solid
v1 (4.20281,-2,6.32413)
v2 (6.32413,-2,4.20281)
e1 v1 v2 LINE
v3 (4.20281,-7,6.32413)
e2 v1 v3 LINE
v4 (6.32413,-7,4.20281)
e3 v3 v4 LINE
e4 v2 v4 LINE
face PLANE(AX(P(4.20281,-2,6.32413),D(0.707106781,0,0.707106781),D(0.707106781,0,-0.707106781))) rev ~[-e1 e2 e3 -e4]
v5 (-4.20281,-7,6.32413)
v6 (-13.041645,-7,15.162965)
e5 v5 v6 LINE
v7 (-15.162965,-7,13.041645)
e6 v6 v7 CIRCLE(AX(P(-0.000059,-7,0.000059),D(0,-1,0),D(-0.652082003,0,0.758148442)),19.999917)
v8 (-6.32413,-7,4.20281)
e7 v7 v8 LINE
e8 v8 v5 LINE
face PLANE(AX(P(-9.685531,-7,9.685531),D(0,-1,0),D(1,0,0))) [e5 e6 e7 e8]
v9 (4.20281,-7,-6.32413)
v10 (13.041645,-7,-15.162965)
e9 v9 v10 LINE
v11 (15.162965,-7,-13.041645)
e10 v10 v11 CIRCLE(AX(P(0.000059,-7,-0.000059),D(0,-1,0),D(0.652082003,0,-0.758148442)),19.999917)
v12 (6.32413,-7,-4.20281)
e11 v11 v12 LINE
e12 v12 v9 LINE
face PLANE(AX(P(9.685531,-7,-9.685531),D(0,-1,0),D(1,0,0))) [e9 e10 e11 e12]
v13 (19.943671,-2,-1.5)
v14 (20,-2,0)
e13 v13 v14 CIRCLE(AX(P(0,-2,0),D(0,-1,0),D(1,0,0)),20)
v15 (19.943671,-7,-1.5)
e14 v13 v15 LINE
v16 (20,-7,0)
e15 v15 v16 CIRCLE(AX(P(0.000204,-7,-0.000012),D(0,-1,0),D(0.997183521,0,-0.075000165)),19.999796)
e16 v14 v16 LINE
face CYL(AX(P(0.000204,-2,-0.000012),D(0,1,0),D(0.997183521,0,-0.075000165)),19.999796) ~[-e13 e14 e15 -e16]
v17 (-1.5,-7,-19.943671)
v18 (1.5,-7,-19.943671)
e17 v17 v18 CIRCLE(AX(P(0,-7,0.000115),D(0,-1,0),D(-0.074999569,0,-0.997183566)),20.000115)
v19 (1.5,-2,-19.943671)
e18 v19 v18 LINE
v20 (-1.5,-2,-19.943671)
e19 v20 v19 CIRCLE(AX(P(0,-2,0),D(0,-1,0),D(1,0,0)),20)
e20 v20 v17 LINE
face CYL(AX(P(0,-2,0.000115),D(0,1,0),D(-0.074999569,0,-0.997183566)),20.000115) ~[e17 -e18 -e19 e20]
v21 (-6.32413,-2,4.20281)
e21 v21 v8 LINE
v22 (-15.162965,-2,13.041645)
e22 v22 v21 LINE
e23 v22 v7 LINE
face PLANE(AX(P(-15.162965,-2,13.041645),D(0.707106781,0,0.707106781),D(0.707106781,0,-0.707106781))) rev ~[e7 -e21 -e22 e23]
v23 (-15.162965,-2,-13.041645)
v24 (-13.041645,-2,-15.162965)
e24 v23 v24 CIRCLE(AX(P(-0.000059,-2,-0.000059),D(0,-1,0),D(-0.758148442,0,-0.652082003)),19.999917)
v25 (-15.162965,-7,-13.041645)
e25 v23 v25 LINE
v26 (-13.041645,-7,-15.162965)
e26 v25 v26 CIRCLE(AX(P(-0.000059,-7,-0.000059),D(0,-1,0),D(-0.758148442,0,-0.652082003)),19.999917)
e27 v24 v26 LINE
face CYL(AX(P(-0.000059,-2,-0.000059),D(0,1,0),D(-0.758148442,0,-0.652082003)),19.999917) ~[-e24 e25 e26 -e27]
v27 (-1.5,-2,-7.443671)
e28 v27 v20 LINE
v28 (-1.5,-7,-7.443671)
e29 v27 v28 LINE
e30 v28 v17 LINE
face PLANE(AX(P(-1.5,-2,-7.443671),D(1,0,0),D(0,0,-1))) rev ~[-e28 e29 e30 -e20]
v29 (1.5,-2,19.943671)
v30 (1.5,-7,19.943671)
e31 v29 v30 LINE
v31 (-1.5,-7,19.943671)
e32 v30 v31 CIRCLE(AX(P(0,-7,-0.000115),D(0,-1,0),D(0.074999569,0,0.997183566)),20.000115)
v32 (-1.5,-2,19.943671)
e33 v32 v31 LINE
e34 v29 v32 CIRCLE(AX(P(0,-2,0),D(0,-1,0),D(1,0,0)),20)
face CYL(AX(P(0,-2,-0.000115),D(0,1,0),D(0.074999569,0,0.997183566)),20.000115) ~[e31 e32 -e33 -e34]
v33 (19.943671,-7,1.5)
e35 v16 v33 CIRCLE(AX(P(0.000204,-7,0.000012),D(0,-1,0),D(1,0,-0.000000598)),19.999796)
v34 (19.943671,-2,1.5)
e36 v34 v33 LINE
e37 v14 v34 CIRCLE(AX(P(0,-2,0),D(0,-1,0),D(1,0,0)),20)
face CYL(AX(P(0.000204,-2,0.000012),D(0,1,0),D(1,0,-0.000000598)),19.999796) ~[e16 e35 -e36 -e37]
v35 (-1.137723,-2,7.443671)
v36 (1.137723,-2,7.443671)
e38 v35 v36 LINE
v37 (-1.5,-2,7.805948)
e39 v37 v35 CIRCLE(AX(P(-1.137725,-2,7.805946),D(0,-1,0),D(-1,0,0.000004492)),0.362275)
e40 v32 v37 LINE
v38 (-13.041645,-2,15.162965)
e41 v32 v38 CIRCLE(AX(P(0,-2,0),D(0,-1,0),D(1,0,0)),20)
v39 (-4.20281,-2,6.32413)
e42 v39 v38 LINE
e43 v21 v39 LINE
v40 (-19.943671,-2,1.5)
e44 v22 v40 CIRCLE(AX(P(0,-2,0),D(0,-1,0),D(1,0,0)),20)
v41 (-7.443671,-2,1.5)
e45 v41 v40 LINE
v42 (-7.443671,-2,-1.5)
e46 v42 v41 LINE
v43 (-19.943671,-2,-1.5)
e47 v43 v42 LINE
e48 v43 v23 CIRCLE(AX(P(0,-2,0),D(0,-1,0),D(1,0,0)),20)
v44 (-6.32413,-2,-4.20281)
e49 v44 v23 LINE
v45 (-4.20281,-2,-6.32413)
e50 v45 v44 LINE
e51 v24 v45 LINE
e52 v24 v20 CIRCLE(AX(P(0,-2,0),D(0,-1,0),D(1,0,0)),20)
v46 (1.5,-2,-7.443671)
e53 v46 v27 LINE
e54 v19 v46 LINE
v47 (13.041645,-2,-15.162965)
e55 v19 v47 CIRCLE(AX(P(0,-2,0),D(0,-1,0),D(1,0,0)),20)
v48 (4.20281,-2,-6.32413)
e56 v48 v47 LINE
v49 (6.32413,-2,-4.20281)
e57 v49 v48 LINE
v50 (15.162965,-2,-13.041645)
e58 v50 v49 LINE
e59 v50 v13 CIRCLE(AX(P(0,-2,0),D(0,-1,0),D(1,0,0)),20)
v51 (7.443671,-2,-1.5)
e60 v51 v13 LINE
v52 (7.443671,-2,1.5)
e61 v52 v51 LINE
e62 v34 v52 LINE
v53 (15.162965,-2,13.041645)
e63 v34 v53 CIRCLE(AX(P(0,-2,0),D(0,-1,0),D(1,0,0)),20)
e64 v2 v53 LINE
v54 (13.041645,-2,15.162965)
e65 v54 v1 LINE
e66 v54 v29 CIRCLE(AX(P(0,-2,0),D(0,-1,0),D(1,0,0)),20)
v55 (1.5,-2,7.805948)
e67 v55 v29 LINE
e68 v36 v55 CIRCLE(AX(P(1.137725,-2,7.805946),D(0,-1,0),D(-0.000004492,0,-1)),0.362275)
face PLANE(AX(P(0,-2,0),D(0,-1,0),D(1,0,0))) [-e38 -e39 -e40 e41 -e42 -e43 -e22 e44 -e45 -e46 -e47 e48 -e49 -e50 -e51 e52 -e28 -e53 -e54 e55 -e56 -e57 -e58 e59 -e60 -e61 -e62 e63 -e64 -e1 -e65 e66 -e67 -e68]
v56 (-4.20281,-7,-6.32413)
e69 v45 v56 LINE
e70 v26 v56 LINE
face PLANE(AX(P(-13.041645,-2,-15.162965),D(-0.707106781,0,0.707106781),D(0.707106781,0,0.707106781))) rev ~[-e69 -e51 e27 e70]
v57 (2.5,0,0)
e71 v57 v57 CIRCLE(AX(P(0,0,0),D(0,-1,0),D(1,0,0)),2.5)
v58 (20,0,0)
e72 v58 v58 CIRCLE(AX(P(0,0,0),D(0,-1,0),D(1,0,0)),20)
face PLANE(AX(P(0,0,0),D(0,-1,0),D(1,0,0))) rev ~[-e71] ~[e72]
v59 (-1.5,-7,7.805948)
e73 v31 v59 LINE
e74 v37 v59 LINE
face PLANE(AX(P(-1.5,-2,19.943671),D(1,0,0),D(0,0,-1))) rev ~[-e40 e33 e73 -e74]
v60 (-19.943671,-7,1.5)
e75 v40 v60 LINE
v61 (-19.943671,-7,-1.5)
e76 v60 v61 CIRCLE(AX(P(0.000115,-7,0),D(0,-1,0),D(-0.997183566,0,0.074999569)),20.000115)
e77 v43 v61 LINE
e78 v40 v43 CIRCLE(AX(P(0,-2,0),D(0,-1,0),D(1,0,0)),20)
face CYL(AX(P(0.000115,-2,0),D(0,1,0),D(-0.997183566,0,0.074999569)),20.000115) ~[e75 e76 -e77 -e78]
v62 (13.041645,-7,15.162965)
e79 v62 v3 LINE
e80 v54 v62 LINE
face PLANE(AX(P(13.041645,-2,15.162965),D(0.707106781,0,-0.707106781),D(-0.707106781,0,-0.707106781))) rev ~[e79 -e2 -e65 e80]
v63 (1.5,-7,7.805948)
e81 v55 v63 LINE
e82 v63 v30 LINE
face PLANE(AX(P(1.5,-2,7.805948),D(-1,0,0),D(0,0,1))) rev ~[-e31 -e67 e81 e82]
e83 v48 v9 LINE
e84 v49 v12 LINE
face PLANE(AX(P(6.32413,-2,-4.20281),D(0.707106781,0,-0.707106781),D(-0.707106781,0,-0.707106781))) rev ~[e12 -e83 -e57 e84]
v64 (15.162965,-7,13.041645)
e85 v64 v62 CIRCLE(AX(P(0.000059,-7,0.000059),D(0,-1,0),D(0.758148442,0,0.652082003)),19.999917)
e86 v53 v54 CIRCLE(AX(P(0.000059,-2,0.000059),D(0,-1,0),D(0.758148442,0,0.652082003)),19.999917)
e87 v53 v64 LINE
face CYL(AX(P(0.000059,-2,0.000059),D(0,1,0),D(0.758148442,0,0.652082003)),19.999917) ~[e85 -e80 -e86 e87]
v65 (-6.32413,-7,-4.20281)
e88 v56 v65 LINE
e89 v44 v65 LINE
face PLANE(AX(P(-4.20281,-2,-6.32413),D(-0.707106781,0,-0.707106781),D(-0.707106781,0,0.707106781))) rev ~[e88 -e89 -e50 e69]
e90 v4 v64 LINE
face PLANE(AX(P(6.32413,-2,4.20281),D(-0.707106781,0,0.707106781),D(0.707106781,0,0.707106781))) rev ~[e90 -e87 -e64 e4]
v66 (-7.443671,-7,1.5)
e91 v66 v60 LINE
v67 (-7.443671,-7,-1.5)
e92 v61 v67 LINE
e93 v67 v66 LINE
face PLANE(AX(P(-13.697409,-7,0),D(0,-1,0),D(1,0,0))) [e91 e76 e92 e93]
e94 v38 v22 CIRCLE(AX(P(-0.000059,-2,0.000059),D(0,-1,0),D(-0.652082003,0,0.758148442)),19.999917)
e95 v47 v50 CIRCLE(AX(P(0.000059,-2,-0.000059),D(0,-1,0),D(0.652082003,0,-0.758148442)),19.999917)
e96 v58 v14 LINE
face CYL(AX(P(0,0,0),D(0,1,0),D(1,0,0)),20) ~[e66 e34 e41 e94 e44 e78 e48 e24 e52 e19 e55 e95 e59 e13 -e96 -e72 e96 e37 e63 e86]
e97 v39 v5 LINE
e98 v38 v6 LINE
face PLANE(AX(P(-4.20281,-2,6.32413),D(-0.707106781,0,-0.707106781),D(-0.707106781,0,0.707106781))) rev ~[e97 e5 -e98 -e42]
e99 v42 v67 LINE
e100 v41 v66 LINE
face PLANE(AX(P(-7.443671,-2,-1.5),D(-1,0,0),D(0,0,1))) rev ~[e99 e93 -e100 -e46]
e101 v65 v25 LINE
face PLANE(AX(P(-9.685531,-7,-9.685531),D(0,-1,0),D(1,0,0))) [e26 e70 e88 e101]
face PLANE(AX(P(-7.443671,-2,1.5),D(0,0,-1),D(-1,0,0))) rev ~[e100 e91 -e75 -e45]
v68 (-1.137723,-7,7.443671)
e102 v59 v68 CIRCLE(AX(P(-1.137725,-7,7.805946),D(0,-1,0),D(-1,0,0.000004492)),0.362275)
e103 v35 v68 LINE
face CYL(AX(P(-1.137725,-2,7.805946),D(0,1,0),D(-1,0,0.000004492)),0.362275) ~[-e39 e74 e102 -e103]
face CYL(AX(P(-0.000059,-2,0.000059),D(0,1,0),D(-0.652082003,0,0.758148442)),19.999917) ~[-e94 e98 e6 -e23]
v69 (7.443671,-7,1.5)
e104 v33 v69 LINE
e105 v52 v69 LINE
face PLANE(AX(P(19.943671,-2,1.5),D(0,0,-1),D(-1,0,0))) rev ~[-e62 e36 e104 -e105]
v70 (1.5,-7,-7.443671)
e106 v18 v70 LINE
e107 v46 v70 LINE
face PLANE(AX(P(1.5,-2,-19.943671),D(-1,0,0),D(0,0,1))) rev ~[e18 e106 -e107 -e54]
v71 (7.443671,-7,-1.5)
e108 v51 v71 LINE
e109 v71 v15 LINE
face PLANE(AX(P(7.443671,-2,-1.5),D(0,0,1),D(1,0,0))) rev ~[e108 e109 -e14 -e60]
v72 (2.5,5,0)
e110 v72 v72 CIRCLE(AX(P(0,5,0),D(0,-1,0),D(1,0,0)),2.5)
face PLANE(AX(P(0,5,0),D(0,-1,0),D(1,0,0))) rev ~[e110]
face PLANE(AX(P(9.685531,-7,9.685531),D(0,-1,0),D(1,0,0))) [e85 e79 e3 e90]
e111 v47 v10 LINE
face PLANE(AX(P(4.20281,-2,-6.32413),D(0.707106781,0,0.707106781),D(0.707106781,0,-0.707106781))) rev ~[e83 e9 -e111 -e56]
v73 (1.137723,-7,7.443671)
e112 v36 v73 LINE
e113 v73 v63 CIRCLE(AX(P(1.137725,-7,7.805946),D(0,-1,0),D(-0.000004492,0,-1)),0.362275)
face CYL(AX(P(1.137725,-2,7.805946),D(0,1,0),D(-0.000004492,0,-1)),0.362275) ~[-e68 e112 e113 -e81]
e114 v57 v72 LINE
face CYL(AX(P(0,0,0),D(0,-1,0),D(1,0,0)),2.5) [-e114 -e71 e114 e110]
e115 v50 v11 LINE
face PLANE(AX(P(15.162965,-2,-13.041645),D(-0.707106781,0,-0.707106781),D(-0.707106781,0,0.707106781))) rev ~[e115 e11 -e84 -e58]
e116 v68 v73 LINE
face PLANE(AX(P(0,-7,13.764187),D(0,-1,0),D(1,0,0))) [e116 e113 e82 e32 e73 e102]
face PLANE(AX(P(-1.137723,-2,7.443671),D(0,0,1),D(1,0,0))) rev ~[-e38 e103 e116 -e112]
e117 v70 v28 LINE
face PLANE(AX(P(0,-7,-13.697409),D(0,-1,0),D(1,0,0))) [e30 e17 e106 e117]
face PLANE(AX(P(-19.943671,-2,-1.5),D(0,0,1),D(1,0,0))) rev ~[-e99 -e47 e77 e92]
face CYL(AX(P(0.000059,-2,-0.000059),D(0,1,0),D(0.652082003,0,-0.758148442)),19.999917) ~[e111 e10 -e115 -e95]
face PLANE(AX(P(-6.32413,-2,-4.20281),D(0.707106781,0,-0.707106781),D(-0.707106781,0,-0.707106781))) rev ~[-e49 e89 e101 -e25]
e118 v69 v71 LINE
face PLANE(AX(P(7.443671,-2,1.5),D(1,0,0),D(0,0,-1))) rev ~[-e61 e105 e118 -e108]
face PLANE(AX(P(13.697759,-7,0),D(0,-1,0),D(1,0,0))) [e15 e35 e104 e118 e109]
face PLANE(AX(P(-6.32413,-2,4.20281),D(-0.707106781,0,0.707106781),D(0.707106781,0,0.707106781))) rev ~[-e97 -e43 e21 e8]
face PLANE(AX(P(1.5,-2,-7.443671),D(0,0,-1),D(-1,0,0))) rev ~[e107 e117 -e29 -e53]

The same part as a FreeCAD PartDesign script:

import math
import FreeCAD as App
import Part
import Sketcher

V = App.Vector

doc = App.newDocument("Part")
body = doc.addObject("PartDesign::Body", "Body")

sketch1 = body.newObject("Sketcher::SketchObject", "Sketch")
sketch1.AttachmentSupport = (doc.getObject("XZ_Plane"), [""])
sketch1.MapMode = "FlatFace"
sketch1.addGeometry(Part.Circle(V(0, 0, 0), V(0, 0, 1), 20), False)
sketch1.addConstraint([
    Sketcher.Constraint("Coincident", 0, 3, -1, 1),
    Sketcher.Constraint("Diameter", 0, 40.0),
])
pad1 = body.newObject("PartDesign::Pad", "Pad")
pad1.Profile = sketch1
pad1.Length = 2

sketch2 = body.newObject("Sketcher::SketchObject", "Sketch001")
sketch2.AttachmentSupport = (doc.getObject("XZ_Plane"), [""])
sketch2.MapMode = "FlatFace"
sketch2.AttachmentOffset = App.Placement(V(0, 0, 2), App.Rotation())
sketch2.addGeometry([
    Part.LineSegment(V(-4.20281, 6.32413, 0), V(-13.041645, 15.162965, 0)),
    Part.ArcOfCircle(Part.Circle(V(-0.000059, 0.000059, 0), V(0, 0, 1), 19.999917), math.radians(130.698761), math.radians(139.301239)),
    Part.LineSegment(V(-15.162965, 13.041645, 0), V(-6.32413, 4.20281, 0)),
    Part.LineSegment(V(-6.32413, 4.20281, 0), V(-4.20281, 6.32413, 0)),
    Part.LineSegment(V(-7.443671, 1.5, 0), V(-19.943671, 1.5, 0)),
    Part.ArcOfCircle(Part.Circle(V(0.000115, 0, 0), V(0, 0, 1), 20.000115), math.radians(175.698802), math.radians(184.301198)),
    Part.LineSegment(V(-19.943671, -1.5, 0), V(-7.443671, -1.5, 0)),
    Part.LineSegment(V(-7.443671, -1.5, 0), V(-7.443671, 1.5, 0)),
    Part.LineSegment(V(-6.32413, -4.20281, 0), V(-15.162965, -13.041645, 0)),
    Part.ArcOfCircle(Part.Circle(V(-0.000059, -0.000059, 0), V(0, 0, 1), 19.999917), math.radians(-139.301239), math.radians(-130.698761)),
    Part.LineSegment(V(-13.041645, -15.162965, 0), V(-4.20281, -6.32413, 0)),
    Part.LineSegment(V(-4.20281, -6.32413, 0), V(-6.32413, -4.20281, 0)),
    Part.LineSegment(V(-1.5, -7.443671, 0), V(-1.5, -19.943671, 0)),
    Part.ArcOfCircle(Part.Circle(V(0, 0.000115, 0), V(0, 0, 1), 20.000115), math.radians(-94.301198), math.radians(-85.698802)),
    Part.LineSegment(V(1.5, -19.943671, 0), V(1.5, -7.443671, 0)),
    Part.LineSegment(V(1.5, -7.443671, 0), V(-1.5, -7.443671, 0)),
    Part.ArcOfCircle(Part.Circle(V(-1.137725, 7.805946, 0), V(0, 0, 1), 0.362275), math.radians(179.999743), math.radians(270.000257)),
    Part.LineSegment(V(-1.137723, 7.443671, 0), V(1.137723, 7.443671, 0)),
    Part.ArcOfCircle(Part.Circle(V(1.137725, 7.805946, 0), V(0, 0, 1), 0.362275), math.radians(-90.000257), math.radians(0.000257)),
    Part.LineSegment(V(1.5, 7.805948, 0), V(1.5, 19.943671, 0)),
    Part.ArcOfCircle(Part.Circle(V(0, -0.000115, 0), V(0, 0, 1), 20.000115), math.radians(85.698802), math.radians(94.301198)),
    Part.LineSegment(V(-1.5, 19.943671, 0), V(-1.5, 7.805948, 0)),
    Part.ArcOfCircle(Part.Circle(V(0.000059, 0.000059, 0), V(0, 0, 1), 19.999917), math.radians(40.698761), math.radians(49.301239)),
    Part.LineSegment(V(13.041645, 15.162965, 0), V(4.20281, 6.32413, 0)),
    Part.LineSegment(V(4.20281, 6.32413, 0), V(6.32413, 4.20281, 0)),
    Part.LineSegment(V(6.32413, 4.20281, 0), V(15.162965, 13.041645, 0)),
    Part.ArcOfCircle(Part.Circle(V(0.000204, 0.000012, 0), V(0, 0, 1), 19.999796), math.radians(-0.000034), math.radians(4.301232)),
    Part.LineSegment(V(19.943671, 1.5, 0), V(7.443671, 1.5, 0)),
    Part.LineSegment(V(7.443671, 1.5, 0), V(7.443671, -1.5, 0)),
    Part.LineSegment(V(7.443671, -1.5, 0), V(19.943671, -1.5, 0)),
    Part.ArcOfCircle(Part.Circle(V(0.000204, -0.000012, 0), V(0, 0, 1), 19.999796), math.radians(-4.301232), math.radians(0.000034)),
    Part.ArcOfCircle(Part.Circle(V(0.000059, -0.000059, 0), V(0, 0, 1), 19.999917), math.radians(-49.301239), math.radians(-40.698761)),
    Part.LineSegment(V(15.162965, -13.041645, 0), V(6.32413, -4.20281, 0)),
    Part.LineSegment(V(6.32413, -4.20281, 0), V(4.20281, -6.32413, 0)),
    Part.LineSegment(V(4.20281, -6.32413, 0), V(13.041645, -15.162965, 0)),
], False)
sketch2.addConstraint([
    Sketcher.Constraint("Coincident", 0, 2, 1, 1),
    Sketcher.Constraint("Coincident", 1, 2, 2, 1),
    Sketcher.Constraint("Coincident", 2, 2, 3, 1),
    Sketcher.Constraint("Coincident", 3, 2, 0, 1),
    Sketcher.Constraint("Coincident", 4, 2, 5, 1),
    Sketcher.Constraint("Coincident", 5, 2, 6, 1),
    Sketcher.Constraint("Coincident", 6, 2, 7, 1),
    Sketcher.Constraint("Coincident", 7, 2, 4, 1),
    Sketcher.Constraint("Coincident", 8, 2, 9, 1),
    Sketcher.Constraint("Coincident", 9, 2, 10, 1),
    Sketcher.Constraint("Coincident", 10, 2, 11, 1),
    Sketcher.Constraint("Coincident", 11, 2, 8, 1),
    Sketcher.Constraint("Coincident", 12, 2, 13, 1),
    Sketcher.Constraint("Coincident", 13, 2, 14, 1),
    Sketcher.Constraint("Coincident", 14, 2, 15, 1),
    Sketcher.Constraint("Coincident", 15, 2, 12, 1),
    Sketcher.Constraint("Coincident", 16, 2, 17, 1),
    Sketcher.Constraint("Coincident", 17, 2, 18, 1),
    Sketcher.Constraint("Coincident", 18, 2, 19, 1),
    Sketcher.Constraint("Coincident", 19, 2, 20, 1),
    Sketcher.Constraint("Coincident", 20, 2, 21, 1),
    Sketcher.Constraint("Coincident", 21, 2, 16, 1),
    Sketcher.Constraint("Coincident", 22, 2, 23, 1),
    Sketcher.Constraint("Coincident", 23, 2, 24, 1),
    Sketcher.Constraint("Coincident", 24, 2, 25, 1),
    Sketcher.Constraint("Coincident", 25, 2, 22, 1),
    Sketcher.Constraint("Coincident", 26, 2, 27, 1),
    Sketcher.Constraint("Coincident", 27, 2, 28, 1),
    Sketcher.Constraint("Coincident", 28, 2, 29, 1),
    Sketcher.Constraint("Coincident", 29, 2, 30, 1),
    Sketcher.Constraint("Tangent", 30, 2, 26, 1),
    Sketcher.Constraint("Coincident", 31, 2, 32, 1),
    Sketcher.Constraint("Coincident", 32, 2, 33, 1),
    Sketcher.Constraint("Coincident", 33, 2, 34, 1),
    Sketcher.Constraint("Coincident", 34, 2, 31, 1),
    Sketcher.Constraint("Horizontal", 4),
    Sketcher.Constraint("Horizontal", 6),
    Sketcher.Constraint("Vertical", 7),
    Sketcher.Constraint("Vertical", 12),
    Sketcher.Constraint("Vertical", 14),
    Sketcher.Constraint("Horizontal", 15),
    Sketcher.Constraint("Horizontal", 17),
    Sketcher.Constraint("Vertical", 19),
    Sketcher.Constraint("Vertical", 21),
    Sketcher.Constraint("Horizontal", 27),
    Sketcher.Constraint("Vertical", 28),
    Sketcher.Constraint("Horizontal", 29),
    Sketcher.Constraint("Equal", 1, 9),
    Sketcher.Constraint("Equal", 5, 13),
    Sketcher.Constraint("Equal", 16, 18),
    Sketcher.Constraint("Equal", 13, 20),
    Sketcher.Constraint("Equal", 9, 22),
    Sketcher.Constraint("Equal", 26, 30),
    Sketcher.Constraint("Equal", 22, 31),
    Sketcher.Constraint("Symmetric", 13, 3, 20, 3, -1, 1),
    Sketcher.Constraint("Symmetric", 9, 3, 22, 3, -1, 1),
    Sketcher.Constraint("Symmetric", 1, 3, 31, 3, -1, 1),
    Sketcher.Constraint("Symmetric", 10, 2, 23, 2, -1, 1),
    Sketcher.Constraint("Symmetric", 11, 2, 24, 2, -1, 1),
    Sketcher.Constraint("Symmetric", 5, 2, 26, 2, -1, 1),
    Sketcher.Constraint("Symmetric", 7, 2, 28, 2, -1, 1),
    Sketcher.Constraint("Symmetric", 2, 2, 32, 2, -1, 1),
    Sketcher.Constraint("Symmetric", 3, 2, 33, 2, -1, 1),
    Sketcher.Constraint("Symmetric", 1, 3, 22, 3, -2),
    Sketcher.Constraint("Symmetric", 12, 2, 13, 2, -2),
    Sketcher.Constraint("Symmetric", 18, 2, 21, 2, -2),
    Sketcher.Constraint("Symmetric", 3, 2, 23, 2, -2),
    Sketcher.Constraint("Symmetric", 2, 2, 24, 2, -2),
    Sketcher.Constraint("Symmetric", 4, 2, 26, 2, -2),
    Sketcher.Constraint("PointOnObject", 30, 2, -1),
    Sketcher.Constraint("Parallel", 0, 2),
    Sketcher.Constraint("Perpendicular", 2, 3),
    Sketcher.Constraint("Parallel", 3, 8),
    Sketcher.Constraint("Parallel", 8, 10),
    Sketcher.Constraint("Perpendicular", 10, 11),
    Sketcher.Constraint("Perpendicular", 11, 23),
    Sketcher.Constraint("Perpendicular", 24, 25),
    Sketcher.Constraint("Perpendicular", 25, 32),
    Sketcher.Constraint("Perpendicular", 33, 34),
    Sketcher.Constraint("Horizontal", 16, 3, 18, 2),
    Sketcher.Constraint("Vertical", 18, 3, 17, 2),
    Sketcher.Constraint("Vertical", 14, 2, 18, 2),
    Sketcher.Constraint("Vertical", 26, 2, 29, 2),
    Sketcher.Constraint("Equal", 15, 7),
    Sketcher.Constraint("Equal", 29, 12),
    Sketcher.Constraint("Equal", 0, 2),
    Sketcher.Constraint("DistanceX", 15, 2, 15, 1, 3.0),
    Sketcher.Constraint("Distance", 3, 3.0),
    Sketcher.Constraint("DistanceX", 4, 2, 4, 1, 12.5),
    Sketcher.Constraint("DistanceX", -1, 1, 30, 2, 20.0),
    Sketcher.Constraint("Distance", 0, 12.5),
    Sketcher.Constraint("DistanceY", 17, 2, 19, 2, 12.5),
    Sketcher.Constraint("Radius", 1, 19.999917),
    Sketcher.Constraint("Radius", 5, 20.000115),
    Sketcher.Constraint("Radius", 16, 0.362275),
    Sketcher.Constraint("Radius", 26, 19.999796),
    Sketcher.Constraint("DistanceY", 16, 3, 1, 2, 5.235699),
    Sketcher.Constraint("DistanceY", 26, 3, 24, 2, 4.202798),
    Sketcher.Constraint("DistanceX", 17, 1, 17, 2, 2.275446),
    Sketcher.Constraint("DistanceX", 2, 2, -1, 1, 6.32413),
])
pad2 = body.newObject("PartDesign::Pad", "Pad001")
pad2.Profile = sketch2
pad2.Length = 5

sketch3 = body.newObject("Sketcher::SketchObject", "Sketch002")
sketch3.AttachmentSupport = (doc.getObject("XZ_Plane"), [""])
sketch3.MapMode = "FlatFace"
sketch3.addGeometry(Part.Circle(V(0, 0, 0), V(0, 0, 1), 2.5), False)
sketch3.addConstraint([
    Sketcher.Constraint("Coincident", 0, 3, -1, 1),
    Sketcher.Constraint("Diameter", 0, 5.0),
])
pad3 = body.newObject("PartDesign::Pad", "Pad002")
pad3.Profile = sketch3
pad3.Length = 5
pad3.Reversed = True

doc.recompute()
